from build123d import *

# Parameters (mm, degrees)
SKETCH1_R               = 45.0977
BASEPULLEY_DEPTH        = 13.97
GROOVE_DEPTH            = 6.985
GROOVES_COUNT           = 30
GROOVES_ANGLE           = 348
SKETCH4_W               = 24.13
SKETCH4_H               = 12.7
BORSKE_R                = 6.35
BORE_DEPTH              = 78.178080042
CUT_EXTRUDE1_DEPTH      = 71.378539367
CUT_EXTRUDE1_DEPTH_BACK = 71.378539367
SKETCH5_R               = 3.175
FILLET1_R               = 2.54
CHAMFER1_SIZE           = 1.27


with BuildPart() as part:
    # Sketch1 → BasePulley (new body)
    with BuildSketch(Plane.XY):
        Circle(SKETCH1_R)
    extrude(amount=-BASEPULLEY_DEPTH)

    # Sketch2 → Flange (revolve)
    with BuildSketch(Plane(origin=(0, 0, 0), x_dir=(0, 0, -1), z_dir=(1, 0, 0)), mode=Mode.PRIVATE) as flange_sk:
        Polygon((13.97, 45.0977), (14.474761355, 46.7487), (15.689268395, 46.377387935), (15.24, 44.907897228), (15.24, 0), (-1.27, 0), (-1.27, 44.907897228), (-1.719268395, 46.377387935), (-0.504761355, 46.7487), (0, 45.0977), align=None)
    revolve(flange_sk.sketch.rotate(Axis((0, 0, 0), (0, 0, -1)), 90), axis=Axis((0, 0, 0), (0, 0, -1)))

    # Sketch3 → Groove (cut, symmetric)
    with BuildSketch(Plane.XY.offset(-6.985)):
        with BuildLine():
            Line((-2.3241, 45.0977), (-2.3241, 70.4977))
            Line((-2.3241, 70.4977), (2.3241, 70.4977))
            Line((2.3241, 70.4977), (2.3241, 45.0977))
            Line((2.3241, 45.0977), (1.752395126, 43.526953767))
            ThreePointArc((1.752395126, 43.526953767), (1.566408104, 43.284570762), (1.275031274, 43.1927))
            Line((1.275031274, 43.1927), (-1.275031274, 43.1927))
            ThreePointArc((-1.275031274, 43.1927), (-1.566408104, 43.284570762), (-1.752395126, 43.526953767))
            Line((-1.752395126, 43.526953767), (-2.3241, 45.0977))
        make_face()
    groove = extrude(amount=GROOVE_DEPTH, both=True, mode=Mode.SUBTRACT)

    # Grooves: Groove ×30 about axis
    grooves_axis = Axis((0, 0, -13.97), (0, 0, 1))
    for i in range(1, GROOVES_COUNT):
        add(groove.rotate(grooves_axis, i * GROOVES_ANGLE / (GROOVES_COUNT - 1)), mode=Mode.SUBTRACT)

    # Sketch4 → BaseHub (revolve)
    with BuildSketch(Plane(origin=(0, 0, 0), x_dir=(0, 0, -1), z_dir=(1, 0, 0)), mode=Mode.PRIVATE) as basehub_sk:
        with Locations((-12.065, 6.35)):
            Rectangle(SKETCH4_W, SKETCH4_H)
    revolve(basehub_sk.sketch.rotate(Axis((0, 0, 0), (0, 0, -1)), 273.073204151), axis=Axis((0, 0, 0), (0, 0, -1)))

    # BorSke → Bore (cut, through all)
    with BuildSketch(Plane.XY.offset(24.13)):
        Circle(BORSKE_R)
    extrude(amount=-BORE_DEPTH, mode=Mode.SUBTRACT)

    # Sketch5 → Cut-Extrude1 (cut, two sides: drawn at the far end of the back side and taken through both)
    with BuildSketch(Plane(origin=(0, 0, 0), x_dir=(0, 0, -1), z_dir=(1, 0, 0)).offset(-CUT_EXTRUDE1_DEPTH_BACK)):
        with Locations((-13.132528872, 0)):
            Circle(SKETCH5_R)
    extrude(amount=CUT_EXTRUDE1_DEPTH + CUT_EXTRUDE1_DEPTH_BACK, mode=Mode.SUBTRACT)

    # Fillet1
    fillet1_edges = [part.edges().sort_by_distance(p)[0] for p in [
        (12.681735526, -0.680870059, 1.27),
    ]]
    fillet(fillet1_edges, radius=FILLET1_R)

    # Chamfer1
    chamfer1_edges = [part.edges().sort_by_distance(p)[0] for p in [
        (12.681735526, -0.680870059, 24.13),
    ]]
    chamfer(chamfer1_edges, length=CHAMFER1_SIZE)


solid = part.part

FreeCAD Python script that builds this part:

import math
import FreeCAD as App
import Part
import Sketcher
from FreeCAD import Vector
Q = App.Units.Quantity


def edges_at(feature, points):
    """Names of the edges that pass closest to the given points."""
    edges = feature.Shape.Edges
    near = lambda p: min(range(len(edges)), key=lambda i: edges[i].distToShape(Part.Vertex(*p))[0])
    return sorted({f"Edge{near(p) + 1}" for p in points})

doc = App.newDocument("Part")
body = doc.addObject("PartDesign::Body", "Body")

sketch1 = body.newObject("Sketcher::SketchObject", "Sketch")
sketch1.AttachmentSupport = (doc.getObject("XY_Plane"), [""])
sketch1.MapMode = "FlatFace"
sketch1.addGeometry(Part.Circle(Vector(0, 0, 0), Vector(0, 0, 1), 45), False)
sketch1.addConstraint(Sketcher.Constraint("Coincident", 0, 3, -1, 1))
sketch1.addConstraint(Sketcher.Constraint("Diameter", 0, Q("3.551 in")))
pad1 = body.newObject("PartDesign::Pad", "Pad")
pad1.Profile = sketch1
pad1.Length = Q("0.55 in")
pad1.Reversed = True

sketch2 = body.newObject("Sketcher::SketchObject", "Sketch001")
sketch2.AttachmentSupport = (doc.getObject("YZ_Plane"), [""])
sketch2.MapMode = "FlatFace"
sketch2.addGeometry(Part.LineSegment(Vector(46.7, -14.5, 0), Vector(45.1, -14, 0)), False)
sketch2.addGeometry(Part.LineSegment(Vector(45.1, -14, 0), Vector(45.1, 0, 0)), False)
sketch2.addGeometry(Part.LineSegment(Vector(45.1, 0, 0), Vector(46.7, 0.5, 0)), False)
sketch2.addGeometry(Part.LineSegment(Vector(46.7, 0.5, 0), Vector(46.4, 1.7, 0)), False)
sketch2.addGeometry(Part.LineSegment(Vector(46.4, 1.7, 0), Vector(44.9, 1.3, 0)), False)
sketch2.addGeometry(Part.LineSegment(Vector(44.9, 1.3, 0), Vector(0, 1.3, 0)), False)
sketch2.addGeometry(Part.LineSegment(Vector(0, 1.3, 0), Vector(0, -15.2, 0)), False)
sketch2.addGeometry(Part.LineSegment(Vector(0, -15.2, 0), Vector(44.9, -15.2, 0)), False)
sketch2.addGeometry(Part.LineSegment(Vector(44.9, -15.2, 0), Vector(46.4, -15.7, 0)), False)
sketch2.addGeometry(Part.LineSegment(Vector(46.4, -15.7, 0), Vector(46.7, -14.5, 0)), False)
sketch2.addConstraint(Sketcher.Constraint("Coincident", 0, 2, 1, 1))
sketch2.addConstraint(Sketcher.Constraint("Coincident", 1, 2, 2, 1))
sketch2.addConstraint(Sketcher.Constraint("Coincident", 2, 2, 3, 1))
sketch2.addConstraint(Sketcher.Constraint("Coincident", 3, 2, 4, 1))
sketch2.addConstraint(Sketcher.Constraint("Coincident", 4, 2, 5, 1))
sketch2.addConstraint(Sketcher.Constraint("Coincident", 5, 2, 6, 1))
sketch2.addConstraint(Sketcher.Constraint("Coincident", 6, 2, 7, 1))
sketch2.addConstraint(Sketcher.Constraint("Coincident", 7, 2, 8, 1))
sketch2.addConstraint(Sketcher.Constraint("Coincident", 8, 2, 9, 1))
sketch2.addConstraint(Sketcher.Constraint("Coincident", 9, 2, 0, 1))
sketch2.addConstraint(Sketcher.Constraint("Vertical", 1))
sketch2.addConstraint(Sketcher.Constraint("Horizontal", 5))
sketch2.addConstraint(Sketcher.Constraint("Vertical", 6))
sketch2.addConstraint(Sketcher.Constraint("Horizontal", 7))
sketch2.addConstraint(Sketcher.Constraint("PointOnObject", 1, 2, -1))
sketch2.addConstraint(Sketcher.Constraint("PointOnObject", 5, 2, -2))
sketch2.addConstraint(Sketcher.Constraint("Perpendicular", 2, 3))
sketch2.addConstraint(Sketcher.Constraint("Perpendicular", 3, 4))
sketch2.addConstraint(Sketcher.Constraint("Parallel", 0, 8))
sketch2.addConstraint(Sketcher.Constraint("Perpendicular", 8, 9))
sketch2.addConstraint(Sketcher.Constraint("Vertical", 4, 2, 7, 2))
sketch2.addConstraint(Sketcher.Constraint("Vertical", 3, 2, 8, 2))
sketch2.addConstraint(Sketcher.Constraint("Vertical", 2, 2, 9, 2))
sketch2.addConstraint(Sketcher.Constraint("Equal", 0, 2))
sketch2.addConstraint(Sketcher.Constraint("Angle", 0, Q("163 deg")))
sketch2.addConstraint(Sketcher.Constraint("DistanceY", 1, 1, 1, 2, Q("0.55 in")))
sketch2.addConstraint(Sketcher.Constraint("DistanceY", 6, 2, 6, 1, Q("0.65 in")))
sketch2.addConstraint(Sketcher.Constraint("Distance", 3, Q("0.05 in")))
sketch2.addConstraint(Sketcher.Constraint("DistanceX", 1, 2, 2, 2, Q("0.065 in")))
sketch2.addConstraint(Sketcher.Constraint("DistanceX", -1, 1, 0, 2, Q("1.7755 in")))
revolution = body.newObject("PartDesign::Revolution", "Revolution")
revolution.Profile = sketch2
revolution.ReferenceAxis = (sketch2, ["V_Axis"])
revolution.Angle = 360

sketch3 = body.newObject("Sketcher::SketchObject", "Sketch002")
sketch3.AttachmentSupport = (doc.getObject("XY_Plane"), [""])
sketch3.MapMode = "FlatFace"
sketch3.AttachmentOffset = App.Placement(Vector(0, 0, -0.275 * 25.4), App.Rotation())
sketch3.addGeometry(Part.LineSegment(Vector(-2.3, 70.5, 0), Vector(-2.3, 45.1, 0)), False)
sketch3.addGeometry(Part.LineSegment(Vector(-2.3, 45.1, 0), Vector(-1.8, 43.5, 0)), False)
sketch3.addGeometry(Part.ArcOfCircle(Part.Circle(Vector(-1.3, 43.7, 0), Vector(0, 0, 1), 0.5), math.radians(-160), math.radians(-90)), False)
sketch3.addGeometry(Part.LineSegment(Vector(-1.3, 43.2, 0), Vector(1.3, 43.2, 0)), False)
sketch3.addGeometry(Part.ArcOfCircle(Part.Circle(Vector(1.3, 43.7, 0), Vector(0, 0, 1), 0.5), math.radians(-90), math.radians(-20)), False)
sketch3.addGeometry(Part.LineSegment(Vector(1.8, 43.5, 0), Vector(2.3, 45.1, 0)), False)
sketch3.addGeometry(Part.LineSegment(Vector(2.3, 45.1, 0), Vector(2.3, 70.5, 0)), False)
sketch3.addGeometry(Part.LineSegment(Vector(2.3, 70.5, 0), Vector(-2.3, 70.5, 0)), False)
sketch3.addConstraint(Sketcher.Constraint("Coincident", 0, 2, 1, 1))
sketch3.addConstraint(Sketcher.Constraint("Tangent", 1, 2, 2, 1))
sketch3.addConstraint(Sketcher.Constraint("Tangent", 2, 2, 3, 1))
sketch3.addConstraint(Sketcher.Constraint("Tangent", 3, 2, 4, 1))
sketch3.addConstraint(Sketcher.Constraint("Tangent", 4, 2, 5, 1))
sketch3.addConstraint(Sketcher.Constraint("Coincident", 5, 2, 6, 1))
sketch3.addConstraint(Sketcher.Constraint("Coincident", 6, 2, 7, 1))
sketch3.addConstraint(Sketcher.Constraint("Coincident", 7, 2, 0, 1))
sketch3.addConstraint(Sketcher.Constraint("Vertical", 0))
sketch3.addConstraint(Sketcher.Constraint("Horizontal", 3))
sketch3.addConstraint(Sketcher.Constraint("Vertical", 6))
sketch3.addConstraint(Sketcher.Constraint("Horizontal", 7))
sketch3.addConstraint(Sketcher.Constraint("Equal", 2, 4))
sketch3.addConstraint(Sketcher.Constraint("Symmetric", 1, 2, 4, 2, -2))
sketch3.addConstraint(Sketcher.Constraint("Horizontal", 0, 2, 5, 2))
sketch3.addConstraint(Sketcher.Constraint("DistanceY", 0, 2, 0, 1, Q("1 in")))
sketch3.addConstraint(Sketcher.Constraint("Radius", 2, Q("0.02 in")))
sketch3.addConstraint(Sketcher.Constraint("Angle", 1, Q("-70 deg")))
sketch3.addConstraint(Sketcher.Constraint("DistanceX", 7, 2, 7, 1, Q("0.183 in")))
sketch3.addConstraint(Sketcher.Constraint("DistanceY", 2, 3, 0, 2, Q("0.055 in")))
sketch3.addConstraint(Sketcher.Constraint("DistanceY", -1, 1, 2, 3, Q("1.7205 in")))
pocket1 = body.newObject("PartDesign::Pocket", "Pocket")
pocket1.Profile = sketch3
pocket1.Length = Q("0.55 in")
pocket1.Midplane = True
doc.recompute()

polarpattern = body.newObject("PartDesign::PolarPattern", "PolarPattern")
polarpattern.Originals = [pocket1]
polarpattern.Axis = (doc.getObject("Z_Axis"), [""])
polarpattern.Angle = 360
polarpattern.Occurrences = 30
body.Tip = polarpattern

sketch4 = body.newObject("Sketcher::SketchObject", "Sketch003")
sketch4.AttachmentSupport = (doc.getObject("YZ_Plane"), [""])
sketch4.MapMode = "FlatFace"
sketch4.addGeometry(Part.LineSegment(Vector(13, 24, 0), Vector(0, 24, 0)), False)
sketch4.addGeometry(Part.LineSegment(Vector(0, 24, 0), Vector(0, 0, 0)), False)
sketch4.addGeometry(Part.LineSegment(Vector(0, 0, 0), Vector(13, 0, 0)), False)
sketch4.addGeometry(Part.LineSegment(Vector(13, 0, 0), Vector(13, 24, 0)), False)
sketch4.addConstraint(Sketcher.Constraint("Coincident", 0, 2, 1, 1))
sketch4.addConstraint(Sketcher.Constraint("Coincident", 1, 2, 2, 1))
sketch4.addConstraint(Sketcher.Constraint("Coincident", 2, 2, 3, 1))
sketch4.addConstraint(Sketcher.Constraint("Coincident", 3, 2, 0, 1))
sketch4.addConstraint(Sketcher.Constraint("Horizontal", 0))
sketch4.addConstraint(Sketcher.Constraint("Vertical", 1))
sketch4.addConstraint(Sketcher.Constraint("Horizontal", 2))
sketch4.addConstraint(Sketcher.Constraint("Vertical", 3))
sketch4.addConstraint(Sketcher.Constraint("Coincident", 1, 2, -1, 1))
sketch4.addConstraint(Sketcher.Constraint("DistanceX", 0, 2, 0, 1, Q("0.5 in")))
sketch4.addConstraint(Sketcher.Constraint("DistanceY", 1, 2, 1, 1, Q("0.95 in")))
revolution2 = body.newObject("PartDesign::Revolution", "Revolution001")
revolution2.Profile = sketch4
revolution2.ReferenceAxis = (sketch4, ["V_Axis"])
revolution2.Angle = 360

sketch5 = body.newObject("Sketcher::SketchObject", "Sketch004")
sketch5.AttachmentSupport = (doc.getObject("XY_Plane"), [""])
sketch5.MapMode = "FlatFace"
sketch5.AttachmentOffset = App.Placement(Vector(0, 0, 0.95 * 25.4), App.Rotation())
sketch5.addGeometry(Part.Circle(Vector(0, 0, 0), Vector(0, 0, 1), 6), False)
sketch5.addConstraint(Sketcher.Constraint("Coincident", 0, 3, -1, 1))
sketch5.addConstraint(Sketcher.Constraint("Diameter", 0, Q("0.5 in")))
pocket2 = body.newObject("PartDesign::Pocket", "Pocket001")
pocket2.Profile = sketch5
pocket2.Type = "ThroughAll"

sketch6 = body.newObject("Sketcher::SketchObject", "Sketch005")
sketch6.AttachmentSupport = (doc.getObject("YZ_Plane"), [""])
sketch6.MapMode = "FlatFace"
sketch6.addGeometry(Part.Circle(Vector(0, 13.1, 0), Vector(0, 0, 1), 3.2), False)
sketch6.addConstraint(Sketcher.Constraint("PointOnObject", 0, 3, -2))
sketch6.addConstraint(Sketcher.Constraint("Diameter", 0, Q("0.25 in")))
sketch6.addConstraint(Sketcher.Constraint("DistanceY", -1, 1, 0, 3, Q("13.132529 mm")))
pocket3 = body.newObject("PartDesign::Pocket", "Pocket002")
pocket3.Profile = sketch6
pocket3.Type = "ThroughAll"
pocket3.Midplane = True
doc.recompute()

fillet = body.newObject("PartDesign::Fillet", "Fillet")
fillet.Base = (pocket3, edges_at(pocket3, [(12.682, -0.681, 1.27)]))
fillet.Radius = Q("0.1 in")
doc.recompute()

chamfer = body.newObject("PartDesign::Chamfer", "Chamfer")
chamfer.Base = (fillet, edges_at(fillet, [(12.682, -0.681, 24.13)]))
chamfer.Size = Q("0.05 in")

doc.recompute()
